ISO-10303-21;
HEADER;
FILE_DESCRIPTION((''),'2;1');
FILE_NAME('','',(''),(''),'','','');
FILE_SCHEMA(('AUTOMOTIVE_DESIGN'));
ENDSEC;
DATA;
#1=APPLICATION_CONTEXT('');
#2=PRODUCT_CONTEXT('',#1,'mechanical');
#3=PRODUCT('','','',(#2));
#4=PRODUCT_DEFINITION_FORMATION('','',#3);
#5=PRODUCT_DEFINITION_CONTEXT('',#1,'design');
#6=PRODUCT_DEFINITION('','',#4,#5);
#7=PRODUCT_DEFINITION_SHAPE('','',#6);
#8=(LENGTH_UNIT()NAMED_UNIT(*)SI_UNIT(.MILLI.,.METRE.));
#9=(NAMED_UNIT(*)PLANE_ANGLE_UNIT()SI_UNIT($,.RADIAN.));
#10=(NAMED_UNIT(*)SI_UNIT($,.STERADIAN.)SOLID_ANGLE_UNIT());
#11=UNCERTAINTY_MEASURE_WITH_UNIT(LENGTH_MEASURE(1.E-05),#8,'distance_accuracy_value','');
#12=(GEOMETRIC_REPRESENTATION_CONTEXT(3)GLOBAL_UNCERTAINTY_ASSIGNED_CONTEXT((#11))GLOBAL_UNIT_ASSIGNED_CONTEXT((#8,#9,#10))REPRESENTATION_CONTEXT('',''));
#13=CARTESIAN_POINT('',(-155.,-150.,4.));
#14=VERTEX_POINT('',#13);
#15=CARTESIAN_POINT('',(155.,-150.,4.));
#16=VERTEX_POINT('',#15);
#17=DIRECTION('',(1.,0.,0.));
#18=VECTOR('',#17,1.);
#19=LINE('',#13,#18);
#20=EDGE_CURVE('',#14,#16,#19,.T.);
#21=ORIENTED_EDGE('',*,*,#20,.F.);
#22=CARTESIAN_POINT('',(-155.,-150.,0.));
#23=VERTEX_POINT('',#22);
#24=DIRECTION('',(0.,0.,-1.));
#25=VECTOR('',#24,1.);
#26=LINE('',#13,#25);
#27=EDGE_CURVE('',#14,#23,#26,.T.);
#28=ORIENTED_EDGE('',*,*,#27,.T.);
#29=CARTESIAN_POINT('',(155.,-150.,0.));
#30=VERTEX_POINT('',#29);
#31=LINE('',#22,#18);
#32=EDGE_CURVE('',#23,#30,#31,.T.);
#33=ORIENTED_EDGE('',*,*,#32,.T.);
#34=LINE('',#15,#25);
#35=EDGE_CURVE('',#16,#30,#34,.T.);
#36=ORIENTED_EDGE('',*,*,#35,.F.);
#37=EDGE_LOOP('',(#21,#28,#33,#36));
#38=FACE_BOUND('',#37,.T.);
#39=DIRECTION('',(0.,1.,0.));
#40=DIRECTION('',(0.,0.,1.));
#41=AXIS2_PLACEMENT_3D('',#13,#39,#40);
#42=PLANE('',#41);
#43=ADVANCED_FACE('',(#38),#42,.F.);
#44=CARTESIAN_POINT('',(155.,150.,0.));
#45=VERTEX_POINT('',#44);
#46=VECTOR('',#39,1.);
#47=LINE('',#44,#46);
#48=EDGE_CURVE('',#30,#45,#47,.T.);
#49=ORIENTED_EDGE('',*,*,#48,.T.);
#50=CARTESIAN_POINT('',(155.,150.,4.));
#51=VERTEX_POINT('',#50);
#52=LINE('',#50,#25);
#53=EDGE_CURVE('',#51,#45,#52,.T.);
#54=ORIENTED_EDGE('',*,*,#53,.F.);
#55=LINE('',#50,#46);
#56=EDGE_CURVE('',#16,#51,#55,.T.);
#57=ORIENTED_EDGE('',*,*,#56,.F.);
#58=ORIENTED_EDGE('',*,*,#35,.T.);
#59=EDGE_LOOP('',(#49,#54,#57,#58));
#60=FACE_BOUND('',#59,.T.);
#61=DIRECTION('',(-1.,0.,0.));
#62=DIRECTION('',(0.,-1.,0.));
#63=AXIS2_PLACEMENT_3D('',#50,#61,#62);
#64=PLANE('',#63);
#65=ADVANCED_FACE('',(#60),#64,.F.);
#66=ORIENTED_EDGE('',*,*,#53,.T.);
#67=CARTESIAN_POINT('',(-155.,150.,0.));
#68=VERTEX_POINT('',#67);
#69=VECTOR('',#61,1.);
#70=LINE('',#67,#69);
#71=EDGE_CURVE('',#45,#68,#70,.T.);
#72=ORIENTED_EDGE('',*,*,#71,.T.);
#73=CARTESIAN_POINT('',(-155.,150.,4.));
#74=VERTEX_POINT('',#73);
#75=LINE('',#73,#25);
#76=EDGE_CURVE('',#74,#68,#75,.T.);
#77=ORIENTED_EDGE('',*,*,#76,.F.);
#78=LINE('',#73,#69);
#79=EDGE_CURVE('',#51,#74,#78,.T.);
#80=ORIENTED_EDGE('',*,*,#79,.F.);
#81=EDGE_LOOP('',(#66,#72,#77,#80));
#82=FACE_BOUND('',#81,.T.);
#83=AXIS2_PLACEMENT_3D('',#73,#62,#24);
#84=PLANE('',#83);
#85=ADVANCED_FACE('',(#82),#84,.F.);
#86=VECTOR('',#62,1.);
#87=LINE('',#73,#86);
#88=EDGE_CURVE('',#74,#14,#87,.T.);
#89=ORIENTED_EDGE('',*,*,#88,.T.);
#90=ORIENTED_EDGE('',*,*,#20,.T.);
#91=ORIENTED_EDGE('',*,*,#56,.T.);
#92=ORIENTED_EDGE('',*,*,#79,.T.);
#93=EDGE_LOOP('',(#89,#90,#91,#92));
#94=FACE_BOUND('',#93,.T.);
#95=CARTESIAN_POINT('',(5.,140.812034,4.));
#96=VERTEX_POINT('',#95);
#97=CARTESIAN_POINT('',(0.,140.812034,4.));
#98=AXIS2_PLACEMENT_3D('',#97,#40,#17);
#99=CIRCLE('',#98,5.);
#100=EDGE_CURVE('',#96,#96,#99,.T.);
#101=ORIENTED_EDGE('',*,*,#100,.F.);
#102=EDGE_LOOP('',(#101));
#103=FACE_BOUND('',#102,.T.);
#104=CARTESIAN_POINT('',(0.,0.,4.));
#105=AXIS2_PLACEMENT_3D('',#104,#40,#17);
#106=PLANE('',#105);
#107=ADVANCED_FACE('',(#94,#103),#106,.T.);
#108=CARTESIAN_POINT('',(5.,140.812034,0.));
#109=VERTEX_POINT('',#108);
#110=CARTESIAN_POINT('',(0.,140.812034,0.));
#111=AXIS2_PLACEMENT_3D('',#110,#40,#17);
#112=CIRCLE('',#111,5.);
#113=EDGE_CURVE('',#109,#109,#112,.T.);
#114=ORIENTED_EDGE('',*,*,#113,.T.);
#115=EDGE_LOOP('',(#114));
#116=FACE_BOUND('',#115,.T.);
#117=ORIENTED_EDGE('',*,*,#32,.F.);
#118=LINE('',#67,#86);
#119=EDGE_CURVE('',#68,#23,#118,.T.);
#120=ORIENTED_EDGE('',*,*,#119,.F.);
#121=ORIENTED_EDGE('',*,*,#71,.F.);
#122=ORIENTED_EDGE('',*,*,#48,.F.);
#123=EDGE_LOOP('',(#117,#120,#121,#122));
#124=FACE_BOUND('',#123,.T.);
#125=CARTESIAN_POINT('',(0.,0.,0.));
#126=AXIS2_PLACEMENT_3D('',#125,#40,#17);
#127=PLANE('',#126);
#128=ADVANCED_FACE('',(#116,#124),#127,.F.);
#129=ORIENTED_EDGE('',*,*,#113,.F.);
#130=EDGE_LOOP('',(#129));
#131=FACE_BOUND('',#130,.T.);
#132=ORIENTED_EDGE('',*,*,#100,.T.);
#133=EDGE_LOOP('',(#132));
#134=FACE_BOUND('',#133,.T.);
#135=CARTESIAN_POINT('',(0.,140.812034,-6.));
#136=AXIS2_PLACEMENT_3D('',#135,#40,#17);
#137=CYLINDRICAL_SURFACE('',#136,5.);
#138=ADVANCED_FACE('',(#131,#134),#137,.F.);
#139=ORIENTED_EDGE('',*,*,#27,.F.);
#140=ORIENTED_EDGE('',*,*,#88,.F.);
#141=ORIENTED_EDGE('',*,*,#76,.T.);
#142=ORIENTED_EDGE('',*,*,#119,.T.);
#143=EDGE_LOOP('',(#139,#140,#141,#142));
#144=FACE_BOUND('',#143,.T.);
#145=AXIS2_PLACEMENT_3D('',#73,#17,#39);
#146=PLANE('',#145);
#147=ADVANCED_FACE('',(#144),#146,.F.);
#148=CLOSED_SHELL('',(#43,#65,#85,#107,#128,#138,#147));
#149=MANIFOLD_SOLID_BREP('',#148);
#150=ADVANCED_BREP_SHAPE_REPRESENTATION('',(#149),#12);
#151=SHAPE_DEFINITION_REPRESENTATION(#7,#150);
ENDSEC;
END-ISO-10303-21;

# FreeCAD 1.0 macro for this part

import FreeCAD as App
import Part
import Sketcher

V = App.Vector


def add_polygon(sketch, points):
    """Adds a closed chain of lines whose ends are joined by coincident constraints."""
    first, n = sketch.GeometryCount, len(points)
    for a, b in zip(points, points[1:] + points[:1]):
        sketch.addGeometry(Part.LineSegment(App.Vector(*a, 0), App.Vector(*b, 0)), False)
    for i in range(n):
        sketch.addConstraint(Sketcher.Constraint("Coincident", first + i, 2, first + (i + 1) % n, 1))

doc = App.newDocument("Part")
body = doc.addObject("PartDesign::Body", "Body")

# Sketch on XY plane
sketch1 = doc.addObject("Sketcher::SketchObject", "Sketch")
body.addObject(sketch1)
sketch1.AttachmentSupport = (doc.XY_Plane, [""])
sketch1.MapMode = "FlatFace"
add_polygon(sketch1, [(-155, 150), (-155, -150), (155, -150), (155, 150)])  # lines 0-3
sketch1.addConstraint(Sketcher.Constraint("Vertical", 0))
sketch1.addConstraint(Sketcher.Constraint("Horizontal", 1))
sketch1.addConstraint(Sketcher.Constraint("Vertical", 2))
sketch1.addConstraint(Sketcher.Constraint("Horizontal", 3))
sketch1.addConstraint(Sketcher.Constraint("Symmetric", 0, 2, 2, 2, -1, 1))
sketch1.addConstraint(Sketcher.Constraint("DistanceX", 1, 1, 1, 2, 310.0))
sketch1.addConstraint(Sketcher.Constraint("DistanceY", 0, 2, 0, 1, 300.0))
pad1 = doc.addObject("PartDesign::Pad", "Pad")
body.addObject(pad1)
pad1.Profile = sketch1
pad1.Length = 4

# Sketch on XY plane
sketch2 = doc.addObject("Sketcher::SketchObject", "Sketch001")
body.addObject(sketch2)
sketch2.AttachmentSupport = (doc.XY_Plane, [""])
sketch2.MapMode = "FlatFace"
sketch2.AttachmentOffset = App.Placement(V(0, 0, 4), App.Rotation())
sketch2.addGeometry(Part.Circle(V(0, 141, 0), V(0, 0, 1), 5), False)
sketch2.addConstraint(Sketcher.Constraint("PointOnObject", 0, 3, -2))
sketch2.addConstraint(Sketcher.Constraint("Diameter", 0, 10.0))
sketch2.addConstraint(Sketcher.Constraint("DistanceY", -1, 1, 0, 3, 140.812034))
pocket1 = doc.addObject("PartDesign::Pocket", "Pocket")
body.addObject(pocket1)
pocket1.Profile = sketch2
pocket1.Length = 10

doc.recompute()
